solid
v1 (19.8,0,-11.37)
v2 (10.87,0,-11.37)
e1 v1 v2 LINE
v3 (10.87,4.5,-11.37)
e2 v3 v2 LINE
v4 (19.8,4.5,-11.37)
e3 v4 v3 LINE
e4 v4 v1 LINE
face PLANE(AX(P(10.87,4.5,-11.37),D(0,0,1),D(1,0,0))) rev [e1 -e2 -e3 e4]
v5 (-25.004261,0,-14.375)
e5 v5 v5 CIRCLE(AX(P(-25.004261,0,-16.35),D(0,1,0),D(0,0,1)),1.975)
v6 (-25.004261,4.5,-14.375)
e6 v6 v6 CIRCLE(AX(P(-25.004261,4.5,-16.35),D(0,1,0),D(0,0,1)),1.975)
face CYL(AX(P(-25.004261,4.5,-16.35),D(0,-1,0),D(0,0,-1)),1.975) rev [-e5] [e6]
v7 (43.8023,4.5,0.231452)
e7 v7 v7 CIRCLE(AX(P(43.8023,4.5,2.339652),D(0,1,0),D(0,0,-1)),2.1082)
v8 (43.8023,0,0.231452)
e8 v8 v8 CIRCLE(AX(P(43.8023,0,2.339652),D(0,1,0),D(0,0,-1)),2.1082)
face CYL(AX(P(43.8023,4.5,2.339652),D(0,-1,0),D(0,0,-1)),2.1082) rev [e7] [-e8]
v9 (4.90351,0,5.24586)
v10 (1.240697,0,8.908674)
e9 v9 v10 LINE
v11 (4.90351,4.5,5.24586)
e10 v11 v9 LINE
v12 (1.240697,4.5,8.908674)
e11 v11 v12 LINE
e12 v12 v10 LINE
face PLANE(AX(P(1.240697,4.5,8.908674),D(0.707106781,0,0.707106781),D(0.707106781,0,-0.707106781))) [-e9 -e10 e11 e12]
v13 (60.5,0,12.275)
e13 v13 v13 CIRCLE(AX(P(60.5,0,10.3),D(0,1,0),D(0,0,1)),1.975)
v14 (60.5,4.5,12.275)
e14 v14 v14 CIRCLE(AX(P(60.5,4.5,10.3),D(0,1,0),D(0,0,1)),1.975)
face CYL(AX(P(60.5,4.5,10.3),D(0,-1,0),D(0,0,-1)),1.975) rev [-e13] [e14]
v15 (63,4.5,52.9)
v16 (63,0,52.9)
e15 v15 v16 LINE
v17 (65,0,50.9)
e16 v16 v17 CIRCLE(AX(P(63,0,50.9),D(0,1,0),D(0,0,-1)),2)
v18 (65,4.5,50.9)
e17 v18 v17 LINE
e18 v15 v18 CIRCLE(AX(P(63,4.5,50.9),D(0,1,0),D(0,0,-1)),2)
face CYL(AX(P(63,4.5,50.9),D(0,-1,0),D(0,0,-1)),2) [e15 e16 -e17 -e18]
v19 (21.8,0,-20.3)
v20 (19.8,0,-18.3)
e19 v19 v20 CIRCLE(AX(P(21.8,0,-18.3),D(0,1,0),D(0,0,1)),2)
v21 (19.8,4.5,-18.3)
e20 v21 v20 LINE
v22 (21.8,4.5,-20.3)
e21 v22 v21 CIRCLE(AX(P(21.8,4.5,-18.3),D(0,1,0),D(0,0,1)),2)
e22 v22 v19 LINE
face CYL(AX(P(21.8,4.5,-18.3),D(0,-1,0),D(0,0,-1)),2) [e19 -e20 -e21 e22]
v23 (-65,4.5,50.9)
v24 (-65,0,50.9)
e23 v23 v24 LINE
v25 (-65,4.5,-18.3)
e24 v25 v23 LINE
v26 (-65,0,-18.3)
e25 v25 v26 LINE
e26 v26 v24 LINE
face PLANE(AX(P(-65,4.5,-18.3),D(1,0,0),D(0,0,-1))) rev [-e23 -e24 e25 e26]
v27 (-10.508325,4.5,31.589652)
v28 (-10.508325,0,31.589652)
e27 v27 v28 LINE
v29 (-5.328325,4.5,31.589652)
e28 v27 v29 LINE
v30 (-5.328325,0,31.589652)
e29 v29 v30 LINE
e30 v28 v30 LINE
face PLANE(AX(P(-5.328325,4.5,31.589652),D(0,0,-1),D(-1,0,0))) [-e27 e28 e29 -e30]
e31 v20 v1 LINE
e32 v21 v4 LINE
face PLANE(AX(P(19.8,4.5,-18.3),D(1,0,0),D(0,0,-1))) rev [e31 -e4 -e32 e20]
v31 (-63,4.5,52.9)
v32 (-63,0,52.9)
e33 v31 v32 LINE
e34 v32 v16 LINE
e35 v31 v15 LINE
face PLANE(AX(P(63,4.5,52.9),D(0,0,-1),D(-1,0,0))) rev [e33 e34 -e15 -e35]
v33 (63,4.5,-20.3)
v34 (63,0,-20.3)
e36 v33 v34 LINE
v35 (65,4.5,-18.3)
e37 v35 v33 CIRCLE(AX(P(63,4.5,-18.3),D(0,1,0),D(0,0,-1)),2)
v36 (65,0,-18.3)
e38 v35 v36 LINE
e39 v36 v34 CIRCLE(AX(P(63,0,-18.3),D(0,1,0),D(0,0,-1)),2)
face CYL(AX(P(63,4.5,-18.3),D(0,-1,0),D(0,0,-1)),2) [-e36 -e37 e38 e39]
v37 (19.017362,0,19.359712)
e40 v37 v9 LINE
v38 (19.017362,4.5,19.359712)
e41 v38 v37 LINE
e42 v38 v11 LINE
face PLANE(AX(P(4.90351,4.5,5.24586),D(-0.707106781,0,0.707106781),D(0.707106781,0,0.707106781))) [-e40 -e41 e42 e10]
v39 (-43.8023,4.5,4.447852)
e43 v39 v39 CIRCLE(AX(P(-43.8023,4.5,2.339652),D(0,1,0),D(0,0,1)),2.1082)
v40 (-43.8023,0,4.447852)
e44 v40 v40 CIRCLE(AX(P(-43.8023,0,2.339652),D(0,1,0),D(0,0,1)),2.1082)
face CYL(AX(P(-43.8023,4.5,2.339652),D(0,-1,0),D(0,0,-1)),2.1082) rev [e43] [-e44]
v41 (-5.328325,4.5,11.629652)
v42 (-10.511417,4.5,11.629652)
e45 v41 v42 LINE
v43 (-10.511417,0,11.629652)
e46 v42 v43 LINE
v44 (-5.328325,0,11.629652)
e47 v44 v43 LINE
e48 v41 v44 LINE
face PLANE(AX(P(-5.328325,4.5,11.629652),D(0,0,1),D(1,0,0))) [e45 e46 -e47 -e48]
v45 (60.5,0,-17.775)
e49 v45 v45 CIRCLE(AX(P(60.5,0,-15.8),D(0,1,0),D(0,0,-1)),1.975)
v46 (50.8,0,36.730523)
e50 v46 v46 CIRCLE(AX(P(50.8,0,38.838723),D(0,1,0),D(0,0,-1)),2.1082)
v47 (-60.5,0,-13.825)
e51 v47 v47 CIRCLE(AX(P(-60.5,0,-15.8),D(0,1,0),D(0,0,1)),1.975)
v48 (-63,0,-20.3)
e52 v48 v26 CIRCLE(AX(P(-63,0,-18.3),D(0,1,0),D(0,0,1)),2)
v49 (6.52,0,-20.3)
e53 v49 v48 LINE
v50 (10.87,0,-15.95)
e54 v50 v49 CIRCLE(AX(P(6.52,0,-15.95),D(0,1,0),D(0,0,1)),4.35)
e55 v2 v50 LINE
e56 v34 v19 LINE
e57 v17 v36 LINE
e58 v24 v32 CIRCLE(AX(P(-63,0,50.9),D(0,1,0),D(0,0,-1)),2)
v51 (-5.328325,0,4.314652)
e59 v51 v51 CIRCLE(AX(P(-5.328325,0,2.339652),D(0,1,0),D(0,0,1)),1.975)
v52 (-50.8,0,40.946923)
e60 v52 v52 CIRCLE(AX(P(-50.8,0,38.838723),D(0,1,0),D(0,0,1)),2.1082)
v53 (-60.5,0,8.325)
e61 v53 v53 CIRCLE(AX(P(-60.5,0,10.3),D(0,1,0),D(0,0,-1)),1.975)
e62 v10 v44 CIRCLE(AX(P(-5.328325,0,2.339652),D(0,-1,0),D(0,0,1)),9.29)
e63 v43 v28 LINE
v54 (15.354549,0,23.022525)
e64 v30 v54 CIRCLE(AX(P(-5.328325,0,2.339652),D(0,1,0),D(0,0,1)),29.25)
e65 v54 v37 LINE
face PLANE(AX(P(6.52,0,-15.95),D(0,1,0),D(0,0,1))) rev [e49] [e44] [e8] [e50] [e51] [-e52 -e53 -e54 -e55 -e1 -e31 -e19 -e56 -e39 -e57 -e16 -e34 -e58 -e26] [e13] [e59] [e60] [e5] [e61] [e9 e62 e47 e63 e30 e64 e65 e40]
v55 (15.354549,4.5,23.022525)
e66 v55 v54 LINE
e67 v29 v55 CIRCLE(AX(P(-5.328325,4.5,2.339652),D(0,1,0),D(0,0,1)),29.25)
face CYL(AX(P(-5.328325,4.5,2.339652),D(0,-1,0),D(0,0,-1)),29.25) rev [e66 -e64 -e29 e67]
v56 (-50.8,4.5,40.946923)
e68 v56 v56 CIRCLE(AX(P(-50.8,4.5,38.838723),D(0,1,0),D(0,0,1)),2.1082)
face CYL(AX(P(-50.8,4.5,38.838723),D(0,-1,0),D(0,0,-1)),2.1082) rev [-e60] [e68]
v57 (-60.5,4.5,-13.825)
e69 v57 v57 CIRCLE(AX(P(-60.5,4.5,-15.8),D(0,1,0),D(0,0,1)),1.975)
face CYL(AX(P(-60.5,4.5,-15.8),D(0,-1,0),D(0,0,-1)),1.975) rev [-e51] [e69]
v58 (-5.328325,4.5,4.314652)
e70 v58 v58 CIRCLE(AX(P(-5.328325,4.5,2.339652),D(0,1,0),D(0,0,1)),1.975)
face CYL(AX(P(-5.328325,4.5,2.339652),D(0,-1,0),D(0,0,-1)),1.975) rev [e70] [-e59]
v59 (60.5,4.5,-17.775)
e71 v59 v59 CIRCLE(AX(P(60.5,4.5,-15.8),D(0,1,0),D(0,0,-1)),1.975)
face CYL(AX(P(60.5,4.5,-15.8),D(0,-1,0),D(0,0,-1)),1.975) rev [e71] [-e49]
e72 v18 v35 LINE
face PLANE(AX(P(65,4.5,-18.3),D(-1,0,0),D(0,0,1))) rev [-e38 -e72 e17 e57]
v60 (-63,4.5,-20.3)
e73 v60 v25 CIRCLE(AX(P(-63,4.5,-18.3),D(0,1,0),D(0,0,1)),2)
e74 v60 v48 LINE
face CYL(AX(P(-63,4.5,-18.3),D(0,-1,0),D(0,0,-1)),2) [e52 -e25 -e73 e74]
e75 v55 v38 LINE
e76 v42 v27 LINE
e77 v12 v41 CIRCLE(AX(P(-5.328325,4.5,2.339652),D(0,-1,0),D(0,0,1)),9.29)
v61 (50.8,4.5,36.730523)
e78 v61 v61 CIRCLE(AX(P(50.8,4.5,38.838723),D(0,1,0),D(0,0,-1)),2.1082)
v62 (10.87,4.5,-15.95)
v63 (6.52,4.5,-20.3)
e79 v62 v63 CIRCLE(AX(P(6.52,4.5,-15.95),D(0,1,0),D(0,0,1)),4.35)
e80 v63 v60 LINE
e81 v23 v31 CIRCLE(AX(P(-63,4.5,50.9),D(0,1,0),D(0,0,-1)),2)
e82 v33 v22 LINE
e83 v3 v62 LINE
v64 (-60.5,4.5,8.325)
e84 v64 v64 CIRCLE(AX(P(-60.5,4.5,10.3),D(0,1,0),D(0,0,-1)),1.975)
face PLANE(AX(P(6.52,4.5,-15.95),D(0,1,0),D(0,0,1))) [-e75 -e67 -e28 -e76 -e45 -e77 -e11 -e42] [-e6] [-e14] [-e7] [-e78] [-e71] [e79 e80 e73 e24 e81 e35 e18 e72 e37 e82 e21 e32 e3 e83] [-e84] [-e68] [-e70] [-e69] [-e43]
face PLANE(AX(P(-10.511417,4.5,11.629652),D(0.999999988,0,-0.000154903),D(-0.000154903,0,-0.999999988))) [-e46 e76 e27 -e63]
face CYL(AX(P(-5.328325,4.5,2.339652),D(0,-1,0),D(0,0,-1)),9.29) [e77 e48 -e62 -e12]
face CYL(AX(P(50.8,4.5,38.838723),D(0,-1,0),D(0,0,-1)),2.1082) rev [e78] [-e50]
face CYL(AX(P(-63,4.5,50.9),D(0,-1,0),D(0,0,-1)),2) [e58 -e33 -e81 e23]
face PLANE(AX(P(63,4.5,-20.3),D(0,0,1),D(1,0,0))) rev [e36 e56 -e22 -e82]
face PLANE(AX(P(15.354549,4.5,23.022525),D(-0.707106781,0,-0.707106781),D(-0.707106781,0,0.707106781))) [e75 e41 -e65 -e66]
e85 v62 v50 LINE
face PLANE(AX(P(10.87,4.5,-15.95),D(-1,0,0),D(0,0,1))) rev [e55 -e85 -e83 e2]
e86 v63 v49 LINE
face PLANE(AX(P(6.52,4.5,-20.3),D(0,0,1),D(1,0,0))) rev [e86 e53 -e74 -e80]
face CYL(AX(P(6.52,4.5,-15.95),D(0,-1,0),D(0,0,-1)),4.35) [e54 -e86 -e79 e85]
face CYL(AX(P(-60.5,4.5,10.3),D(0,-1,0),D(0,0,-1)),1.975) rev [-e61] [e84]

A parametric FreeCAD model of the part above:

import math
import FreeCAD as App
import Part
import Sketcher
from FreeCAD import Vector
Q = App.Units.Quantity

doc = App.newDocument("Part")
body = doc.addObject("PartDesign::Body", "Body")

sketch1 = body.newObject("Sketcher::SketchObject", "Sketch")
sketch1.AttachmentSupport = (doc.getObject("XZ_Plane"), [""])
sketch1.MapMode = "FlatFace"
sketch1.addGeometry([
    Part.LineSegment(Vector(63, -20.3, 0), Vector(21.8, -20.3, 0)),
    Part.ArcOfCircle(Part.Circle(Vector(21.8, -18.3, 0), Vector(0, 0, 1), 2), math.radians(-180), math.radians(-90)),
    Part.LineSegment(Vector(19.8, -18.3, 0), Vector(19.8, -11.37, 0)),
    Part.LineSegment(Vector(19.8, -11.37, 0), Vector(10.87, -11.37, 0)),
    Part.LineSegment(Vector(10.87, -11.37, 0), Vector(10.87, -15.95, 0)),
    Part.ArcOfCircle(Part.Circle(Vector(6.52, -15.95, 0), Vector(0, 0, 1), 4.35), math.radians(-90), math.radians(0)),
    Part.LineSegment(Vector(6.52, -20.3, 0), Vector(-63, -20.3, 0)),
    Part.ArcOfCircle(Part.Circle(Vector(-63, -18.3, 0), Vector(0, 0, 1), 2), math.radians(-180), math.radians(-90)),
    Part.LineSegment(Vector(-65, -18.3, 0), Vector(-65, 50.9, 0)),
    Part.ArcOfCircle(Part.Circle(Vector(-63, 50.9, 0), Vector(0, 0, 1), 2), math.radians(90), math.radians(180)),
    Part.LineSegment(Vector(-63, 52.9, 0), Vector(63, 52.9, 0)),
    Part.ArcOfCircle(Part.Circle(Vector(63, 50.9, 0), Vector(0, 0, 1), 2), math.radians(0), math.radians(90)),
    Part.LineSegment(Vector(65, 50.9, 0), Vector(65, -18.3, 0)),
    Part.ArcOfCircle(Part.Circle(Vector(63, -18.3, 0), Vector(0, 0, 1), 2), math.radians(-90), math.radians(0)),
    Part.Circle(Vector(-50.8, 38.838723, 0), Vector(0, 0, 1), 2.1082),
    Part.Circle(Vector(50.8, 38.838723, 0), Vector(0, 0, 1), 2.1082),
    Part.ArcOfCircle(Part.Circle(Vector(-5.328325, 2.339652, 0), Vector(0, 0, 1), 29.25), math.radians(45), math.radians(90)),
    Part.LineSegment(Vector(-5.328325, 31.589652, 0), Vector(-10.508325, 31.589652, 0)),
    Part.LineSegment(Vector(-10.508325, 31.589652, 0), Vector(-10.511417, 11.629652, 0)),
    Part.LineSegment(Vector(-10.511417, 11.629652, 0), Vector(-5.328325, 11.629652, 0)),
    Part.ArcOfCircle(Part.Circle(Vector(-5.328325, 2.339652, 0), Vector(0, 0, 1), 9.29), math.radians(45), math.radians(90)),
    Part.LineSegment(Vector(1.240697, 8.908674, 0), Vector(4.90351, 5.24586, 0)),
    Part.LineSegment(Vector(4.90351, 5.24586, 0), Vector(19.017362, 19.359712, 0)),
    Part.LineSegment(Vector(19.017362, 19.359712, 0), Vector(15.354549, 23.022525, 0)),
    Part.Circle(Vector(-60.5, 10.3, 0), Vector(0, 0, 1), 1.975),
    Part.Circle(Vector(-43.8023, 2.339652, 0), Vector(0, 0, 1), 2.1082),
    Part.Circle(Vector(-5.328325, 2.339652, 0), Vector(0, 0, 1), 1.975),
    Part.Circle(Vector(-60.5, -15.8, 0), Vector(0, 0, 1), 1.975),
    Part.Circle(Vector(-25.004261, -16.35, 0), Vector(0, 0, 1), 1.975),
    Part.Circle(Vector(60.5, 10.3, 0), Vector(0, 0, 1), 1.975),
    Part.Circle(Vector(43.8023, 2.339652, 0), Vector(0, 0, 1), 2.1082),
    Part.Circle(Vector(60.5, -15.8, 0), Vector(0, 0, 1), 1.975),
], False)
sketch1.addConstraint([
    Sketcher.Constraint("Tangent", 0, 2, 1, 2),
    Sketcher.Constraint("Tangent", 1, 1, 2, 1),
    Sketcher.Constraint("Coincident", 2, 2, 3, 1),
    Sketcher.Constraint("Coincident", 3, 2, 4, 1),
    Sketcher.Constraint("Tangent", 4, 2, 5, 2),
    Sketcher.Constraint("Tangent", 5, 1, 6, 1),
    Sketcher.Constraint("Tangent", 6, 2, 7, 2),
    Sketcher.Constraint("Tangent", 7, 1, 8, 1),
    Sketcher.Constraint("Tangent", 8, 2, 9, 2),
    Sketcher.Constraint("Tangent", 9, 1, 10, 1),
    Sketcher.Constraint("Tangent", 10, 2, 11, 2),
    Sketcher.Constraint("Tangent", 11, 1, 12, 1),
    Sketcher.Constraint("Tangent", 12, 2, 13, 2),
    Sketcher.Constraint("Tangent", 13, 1, 0, 1),
    Sketcher.Constraint("Tangent", 16, 2, 17, 1),
    Sketcher.Constraint("Coincident", 17, 2, 18, 1),
    Sketcher.Constraint("Coincident", 18, 2, 19, 1),
    Sketcher.Constraint("Tangent", 19, 2, 20, 2),
    Sketcher.Constraint("Tangent", 20, 1, 21, 1),
    Sketcher.Constraint("Coincident", 21, 2, 22, 1),
    Sketcher.Constraint("Coincident", 22, 2, 23, 1),
    Sketcher.Constraint("Tangent", 23, 2, 16, 1),
    Sketcher.Constraint("Horizontal", 0),
    Sketcher.Constraint("Vertical", 2),
    Sketcher.Constraint("Horizontal", 3),
    Sketcher.Constraint("Vertical", 4),
    Sketcher.Constraint("Horizontal", 6),
    Sketcher.Constraint("Vertical", 8),
    Sketcher.Constraint("Horizontal", 10),
    Sketcher.Constraint("Vertical", 12),
    Sketcher.Constraint("Horizontal", 17),
    Sketcher.Constraint("Horizontal", 19),
    Sketcher.Constraint("Coincident", 20, 3, 16, 3),
    Sketcher.Constraint("Coincident", 26, 3, 16, 3),
    Sketcher.Constraint("Equal", 1, 7),
    Sketcher.Constraint("Equal", 7, 9),
    Sketcher.Constraint("Equal", 9, 11),
    Sketcher.Constraint("Equal", 11, 13),
    Sketcher.Constraint("Equal", 14, 15),
    Sketcher.Constraint("Equal", 15, 25),
    Sketcher.Constraint("Equal", 24, 26),
    Sketcher.Constraint("Equal", 26, 27),
    Sketcher.Constraint("Equal", 27, 28),
    Sketcher.Constraint("Equal", 28, 29),
    Sketcher.Constraint("Equal", 25, 30),
    Sketcher.Constraint("Equal", 29, 31),
    Sketcher.Constraint("Symmetric", 7, 3, 13, 3, -2),
    Sketcher.Constraint("Symmetric", 14, 3, 15, 3, -2),
    Sketcher.Constraint("Symmetric", 24, 3, 29, 3, -2),
    Sketcher.Constraint("Symmetric", 25, 3, 30, 3, -2),
    Sketcher.Constraint("Symmetric", 27, 3, 31, 3, -2),
    Sketcher.Constraint("Perpendicular", 21, 22),
    Sketcher.Constraint("Perpendicular", 22, 23),
    Sketcher.Constraint("Horizontal", 20, 3, 25, 3),
    Sketcher.Constraint("Vertical", 24, 3, 27, 3),
    Sketcher.Constraint("Radius", 1, Q("2 mm")),
    Sketcher.Constraint("Diameter", 24, Q("3.95 mm")),
    Sketcher.Constraint("DistanceX", 10, 1, 10, 2, Q("126 mm")),
    Sketcher.Constraint("Angle", 21, Q("-45 deg")),
    Sketcher.Constraint("Radius", 5, Q("4.35 mm")),
    Sketcher.Constraint("Radius", 16, Q("29.25 mm")),
    Sketcher.Constraint("Radius", 20, Q("9.29 mm")),
    Sketcher.Constraint("DistanceX", 0, 2, 0, 1, Q("41.2 mm")),
    Sketcher.Constraint("DistanceY", 8, 1, 8, 2, Q("69.2 mm")),
    Sketcher.Constraint("DistanceX", 1, 3, 15, 3, Q("29 mm")),
    Sketcher.Constraint("Diameter", 14, Q("4.2164 mm")),
    Sketcher.Constraint("DistanceX", 3, 2, 3, 1, Q("8.93 mm")),
    Sketcher.Constraint("DistanceX", 17, 2, 17, 1, Q("5.18 mm")),
    Sketcher.Constraint("DistanceY", 2, 1, 2, 2, Q("6.93 mm")),
    Sketcher.Constraint("DistanceY", 1, 3, -1, 1, Q("18.3 mm")),
    Sketcher.Constraint("DistanceX", 24, 3, -1, 1, Q("60.5 mm")),
    Sketcher.Constraint("DistanceY", -1, 1, 24, 3, Q("10.3 mm")),
    Sketcher.Constraint("DistanceY", 27, 3, -1, 1, Q("15.8 mm")),
    Sketcher.Constraint("DistanceY", 28, 3, 5, 3, Q("0.4 mm")),
    Sketcher.Constraint("Distance", 21, Q("5.18 mm")),
    Sketcher.Constraint("DistanceX", 19, 1, 19, 2, Q("5.183092 mm")),
    Sketcher.Constraint("DistanceX", 25, 3, -1, 1, Q("43.8023 mm")),
    Sketcher.Constraint("DistanceY", -1, 1, 16, 3, Q("2.339652 mm")),
    Sketcher.Constraint("DistanceX", 28, 3, -1, 1, Q("25.004261 mm")),
    Sketcher.Constraint("DistanceX", -1, 1, 21, 2, Q("4.90351 mm")),
    Sketcher.Constraint("DistanceY", 16, 3, 14, 3, Q("36.499071 mm")),
])
pad1 = body.newObject("PartDesign::Pad", "Pad")
pad1.Profile = sketch1
pad1.Length = 4.5
pad1.Reversed = True

doc.recompute()
